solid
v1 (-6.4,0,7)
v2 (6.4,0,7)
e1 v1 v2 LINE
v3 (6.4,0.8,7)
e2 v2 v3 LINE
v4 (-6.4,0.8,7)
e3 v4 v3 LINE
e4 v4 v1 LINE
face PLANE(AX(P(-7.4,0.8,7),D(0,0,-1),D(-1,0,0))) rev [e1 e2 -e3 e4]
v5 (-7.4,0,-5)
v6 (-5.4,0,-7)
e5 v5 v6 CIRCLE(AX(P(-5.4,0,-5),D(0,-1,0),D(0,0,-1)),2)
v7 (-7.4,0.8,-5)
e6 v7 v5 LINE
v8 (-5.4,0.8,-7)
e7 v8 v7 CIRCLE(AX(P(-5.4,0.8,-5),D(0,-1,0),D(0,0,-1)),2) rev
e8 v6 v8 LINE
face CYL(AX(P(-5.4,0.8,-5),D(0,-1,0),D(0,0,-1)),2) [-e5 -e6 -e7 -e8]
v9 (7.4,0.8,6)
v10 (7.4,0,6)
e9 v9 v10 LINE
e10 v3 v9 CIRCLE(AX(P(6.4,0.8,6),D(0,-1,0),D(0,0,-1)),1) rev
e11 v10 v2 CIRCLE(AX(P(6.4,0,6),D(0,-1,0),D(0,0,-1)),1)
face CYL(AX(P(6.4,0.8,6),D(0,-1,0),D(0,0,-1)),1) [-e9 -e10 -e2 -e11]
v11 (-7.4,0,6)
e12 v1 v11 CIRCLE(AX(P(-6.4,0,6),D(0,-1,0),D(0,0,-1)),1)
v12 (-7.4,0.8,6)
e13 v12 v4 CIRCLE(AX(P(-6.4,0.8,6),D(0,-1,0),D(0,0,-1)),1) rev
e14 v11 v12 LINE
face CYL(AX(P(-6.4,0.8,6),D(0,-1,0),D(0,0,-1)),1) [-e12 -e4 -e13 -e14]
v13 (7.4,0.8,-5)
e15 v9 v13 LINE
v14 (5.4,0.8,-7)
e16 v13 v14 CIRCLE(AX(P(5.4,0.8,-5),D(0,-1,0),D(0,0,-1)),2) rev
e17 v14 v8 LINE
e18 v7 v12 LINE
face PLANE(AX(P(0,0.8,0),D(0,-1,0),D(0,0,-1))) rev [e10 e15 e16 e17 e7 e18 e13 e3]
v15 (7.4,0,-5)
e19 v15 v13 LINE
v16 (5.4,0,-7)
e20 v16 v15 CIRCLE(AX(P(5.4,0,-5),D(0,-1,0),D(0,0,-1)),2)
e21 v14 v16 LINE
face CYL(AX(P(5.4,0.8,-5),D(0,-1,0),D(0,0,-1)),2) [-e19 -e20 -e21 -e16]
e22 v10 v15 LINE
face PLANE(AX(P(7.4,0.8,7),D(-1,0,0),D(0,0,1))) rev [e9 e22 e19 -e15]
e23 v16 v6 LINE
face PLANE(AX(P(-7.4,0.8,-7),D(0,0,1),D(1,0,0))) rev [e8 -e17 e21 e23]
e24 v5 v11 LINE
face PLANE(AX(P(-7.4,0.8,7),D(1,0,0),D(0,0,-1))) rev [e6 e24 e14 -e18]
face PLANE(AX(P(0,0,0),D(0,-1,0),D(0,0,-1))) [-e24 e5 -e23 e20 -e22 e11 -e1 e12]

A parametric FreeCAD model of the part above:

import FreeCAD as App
import Part
import Sketcher
from FreeCAD import Vector
Q = App.Units.Quantity


def edges_at(feature, points):
    """Names of the edges that pass closest to the given points."""
    edges = feature.Shape.Edges
    near = lambda p: min(range(len(edges)), key=lambda i: edges[i].distToShape(Part.Vertex(*p))[0])
    return sorted({f"Edge{near(p) + 1}" for p in points})


def add_polygon(sketch, points):
    """Adds a closed chain of lines whose ends are joined by coincident constraints."""
    first, n = sketch.GeometryCount, len(points)
    for a, b in zip(points, points[1:] + points[:1]):
        sketch.addGeometry(Part.LineSegment(App.Vector(*a, 0), App.Vector(*b, 0)), False)
    for i in range(n):
        sketch.addConstraint(Sketcher.Constraint("Coincident", first + i, 2, first + (i + 1) % n, 1))

doc = App.newDocument("Part")
body = doc.addObject("PartDesign::Body", "Body")

sketch1 = body.newObject("Sketcher::SketchObject", "Sketch")
sketch1.AttachmentSupport = (doc.getObject("XZ_Plane"), [""])
sketch1.MapMode = "FlatFace"
add_polygon(sketch1, [(-7, -7), (-7, 7), (7, 7), (7, -7)])
sketch1.addConstraint(Sketcher.Constraint("Vertical", 0))
sketch1.addConstraint(Sketcher.Constraint("Horizontal", 1))
sketch1.addConstraint(Sketcher.Constraint("Vertical", 2))
sketch1.addConstraint(Sketcher.Constraint("Horizontal", 3))
sketch1.addConstraint(Sketcher.Constraint("Symmetric", 0, 2, 2, 2, -1, 1))
sketch1.addConstraint(Sketcher.Constraint("DistanceY", 0, 1, 0, 2, Q("14 mm")))
sketch1.addConstraint(Sketcher.Constraint("DistanceX", 1, 1, 1, 2, Q("14.8 mm")))
pad1 = body.newObject("PartDesign::Pad", "Pad")
pad1.Profile = sketch1
pad1.Length = 0.8
pad1.Reversed = True
doc.recompute()

fillet = body.newObject("PartDesign::Fillet", "Fillet")
fillet.Base = (pad1, edges_at(pad1, [(-7.4, 0.4, -7), (7.4, 0.4, -7)]))
fillet.Radius = 2
doc.recompute()

fillet2 = body.newObject("PartDesign::Fillet", "Fillet001")
fillet2.Base = (fillet, edges_at(fillet, [(7.4, 0.4, 7), (-7.4, 0.4, 7)]))
fillet2.Radius = 1

doc.recompute()
